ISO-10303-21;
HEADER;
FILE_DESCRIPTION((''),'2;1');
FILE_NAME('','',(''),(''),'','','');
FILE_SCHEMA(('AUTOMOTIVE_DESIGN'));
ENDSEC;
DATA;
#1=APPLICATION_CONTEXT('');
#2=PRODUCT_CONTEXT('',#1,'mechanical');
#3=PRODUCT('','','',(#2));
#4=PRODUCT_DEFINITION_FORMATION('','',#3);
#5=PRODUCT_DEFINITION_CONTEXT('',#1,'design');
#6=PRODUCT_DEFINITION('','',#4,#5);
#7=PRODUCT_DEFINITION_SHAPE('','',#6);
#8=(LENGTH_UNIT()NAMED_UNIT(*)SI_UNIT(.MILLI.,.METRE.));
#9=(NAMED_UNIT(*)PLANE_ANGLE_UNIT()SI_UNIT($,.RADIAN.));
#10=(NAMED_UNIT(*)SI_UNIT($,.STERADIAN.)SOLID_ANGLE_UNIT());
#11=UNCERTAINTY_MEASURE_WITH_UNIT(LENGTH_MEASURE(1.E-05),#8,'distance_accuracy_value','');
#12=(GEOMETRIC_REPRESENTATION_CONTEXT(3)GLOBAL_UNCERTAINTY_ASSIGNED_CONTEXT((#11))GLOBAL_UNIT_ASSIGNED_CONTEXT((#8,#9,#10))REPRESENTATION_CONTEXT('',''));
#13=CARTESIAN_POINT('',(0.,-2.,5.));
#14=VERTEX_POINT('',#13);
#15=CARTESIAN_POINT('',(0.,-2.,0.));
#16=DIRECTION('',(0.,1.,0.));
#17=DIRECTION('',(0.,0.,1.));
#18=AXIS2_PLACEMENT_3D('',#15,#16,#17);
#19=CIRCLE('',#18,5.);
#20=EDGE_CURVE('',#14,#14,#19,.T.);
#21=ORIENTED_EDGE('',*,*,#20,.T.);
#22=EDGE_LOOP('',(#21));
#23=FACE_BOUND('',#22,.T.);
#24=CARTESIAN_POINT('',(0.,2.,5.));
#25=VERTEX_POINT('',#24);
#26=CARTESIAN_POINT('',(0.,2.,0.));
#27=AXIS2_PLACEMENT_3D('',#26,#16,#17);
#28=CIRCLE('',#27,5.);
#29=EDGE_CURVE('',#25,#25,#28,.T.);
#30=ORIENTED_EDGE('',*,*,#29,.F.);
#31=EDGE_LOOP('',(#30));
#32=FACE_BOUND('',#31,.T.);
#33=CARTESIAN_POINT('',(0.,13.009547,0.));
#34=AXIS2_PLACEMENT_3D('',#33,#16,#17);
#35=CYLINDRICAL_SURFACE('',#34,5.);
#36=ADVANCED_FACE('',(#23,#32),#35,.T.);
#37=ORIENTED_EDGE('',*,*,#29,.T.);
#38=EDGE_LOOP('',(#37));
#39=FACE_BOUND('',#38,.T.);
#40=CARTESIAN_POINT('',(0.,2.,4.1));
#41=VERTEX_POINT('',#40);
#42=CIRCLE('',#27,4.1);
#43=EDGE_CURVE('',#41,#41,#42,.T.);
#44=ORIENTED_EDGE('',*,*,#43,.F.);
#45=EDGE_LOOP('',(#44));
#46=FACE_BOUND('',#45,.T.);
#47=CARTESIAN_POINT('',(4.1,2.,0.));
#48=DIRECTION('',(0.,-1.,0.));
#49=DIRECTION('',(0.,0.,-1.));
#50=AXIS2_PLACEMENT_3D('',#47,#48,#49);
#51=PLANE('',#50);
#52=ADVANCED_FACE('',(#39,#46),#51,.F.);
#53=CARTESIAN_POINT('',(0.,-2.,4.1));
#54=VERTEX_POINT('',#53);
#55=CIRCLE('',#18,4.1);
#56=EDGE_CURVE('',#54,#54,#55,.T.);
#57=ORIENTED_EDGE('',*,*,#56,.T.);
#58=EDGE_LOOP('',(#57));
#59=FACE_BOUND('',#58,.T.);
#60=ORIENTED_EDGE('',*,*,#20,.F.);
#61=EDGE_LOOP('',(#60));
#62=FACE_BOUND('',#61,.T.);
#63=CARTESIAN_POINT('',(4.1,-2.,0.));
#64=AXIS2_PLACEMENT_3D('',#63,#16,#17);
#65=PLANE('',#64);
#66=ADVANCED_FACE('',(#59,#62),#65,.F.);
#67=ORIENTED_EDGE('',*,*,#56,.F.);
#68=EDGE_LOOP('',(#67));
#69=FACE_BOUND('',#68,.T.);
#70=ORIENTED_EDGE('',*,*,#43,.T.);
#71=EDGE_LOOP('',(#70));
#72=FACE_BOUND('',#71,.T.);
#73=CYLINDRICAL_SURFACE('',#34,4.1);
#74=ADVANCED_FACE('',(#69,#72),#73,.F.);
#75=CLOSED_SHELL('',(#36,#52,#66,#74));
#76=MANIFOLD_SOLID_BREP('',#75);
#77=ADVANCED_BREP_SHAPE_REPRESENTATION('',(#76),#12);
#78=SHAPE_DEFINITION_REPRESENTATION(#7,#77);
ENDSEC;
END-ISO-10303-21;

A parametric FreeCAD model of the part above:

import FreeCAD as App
import Part
import Sketcher
from FreeCAD import Vector
Q = App.Units.Quantity


def add_polygon(sketch, points):
    """Adds a closed chain of lines whose ends are joined by coincident constraints."""
    first, n = sketch.GeometryCount, len(points)
    for a, b in zip(points, points[1:] + points[:1]):
        sketch.addGeometry(Part.LineSegment(App.Vector(*a, 0), App.Vector(*b, 0)), False)
    for i in range(n):
        sketch.addConstraint(Sketcher.Constraint("Coincident", first + i, 2, first + (i + 1) % n, 1))

doc = App.newDocument("Part")
body = doc.addObject("PartDesign::Body", "Body")

sketch1 = body.newObject("Sketcher::SketchObject", "Sketch")
sketch1.AttachmentSupport = (doc.getObject("XY_Plane"), [""])
sketch1.MapMode = "FlatFace"
add_polygon(sketch1, [(4.1, 2), (4.1, -2), (5, -2), (5, 2)])
sketch1.addConstraint(Sketcher.Constraint("Vertical", 0))
sketch1.addConstraint(Sketcher.Constraint("Horizontal", 1))
sketch1.addConstraint(Sketcher.Constraint("Vertical", 2))
sketch1.addConstraint(Sketcher.Constraint("Horizontal", 3))
sketch1.addConstraint(Sketcher.Constraint("DistanceY", 0, 2, 0, 1, Q("4 mm")))
sketch1.addConstraint(Sketcher.Constraint("DistanceX", 1, 1, 1, 2, Q("0.9 mm")))
sketch1.addConstraint(Sketcher.Constraint("DistanceY", 0, 2, -1, 1, Q("2 mm")))
sketch1.addConstraint(Sketcher.Constraint("DistanceX", -1, 1, 1, 2, Q("5 mm")))
revolution = body.newObject("PartDesign::Revolution", "Revolution")
revolution.Profile = sketch1
revolution.ReferenceAxis = (sketch1, ["V_Axis"])
revolution.Angle = 360

doc.recompute()
